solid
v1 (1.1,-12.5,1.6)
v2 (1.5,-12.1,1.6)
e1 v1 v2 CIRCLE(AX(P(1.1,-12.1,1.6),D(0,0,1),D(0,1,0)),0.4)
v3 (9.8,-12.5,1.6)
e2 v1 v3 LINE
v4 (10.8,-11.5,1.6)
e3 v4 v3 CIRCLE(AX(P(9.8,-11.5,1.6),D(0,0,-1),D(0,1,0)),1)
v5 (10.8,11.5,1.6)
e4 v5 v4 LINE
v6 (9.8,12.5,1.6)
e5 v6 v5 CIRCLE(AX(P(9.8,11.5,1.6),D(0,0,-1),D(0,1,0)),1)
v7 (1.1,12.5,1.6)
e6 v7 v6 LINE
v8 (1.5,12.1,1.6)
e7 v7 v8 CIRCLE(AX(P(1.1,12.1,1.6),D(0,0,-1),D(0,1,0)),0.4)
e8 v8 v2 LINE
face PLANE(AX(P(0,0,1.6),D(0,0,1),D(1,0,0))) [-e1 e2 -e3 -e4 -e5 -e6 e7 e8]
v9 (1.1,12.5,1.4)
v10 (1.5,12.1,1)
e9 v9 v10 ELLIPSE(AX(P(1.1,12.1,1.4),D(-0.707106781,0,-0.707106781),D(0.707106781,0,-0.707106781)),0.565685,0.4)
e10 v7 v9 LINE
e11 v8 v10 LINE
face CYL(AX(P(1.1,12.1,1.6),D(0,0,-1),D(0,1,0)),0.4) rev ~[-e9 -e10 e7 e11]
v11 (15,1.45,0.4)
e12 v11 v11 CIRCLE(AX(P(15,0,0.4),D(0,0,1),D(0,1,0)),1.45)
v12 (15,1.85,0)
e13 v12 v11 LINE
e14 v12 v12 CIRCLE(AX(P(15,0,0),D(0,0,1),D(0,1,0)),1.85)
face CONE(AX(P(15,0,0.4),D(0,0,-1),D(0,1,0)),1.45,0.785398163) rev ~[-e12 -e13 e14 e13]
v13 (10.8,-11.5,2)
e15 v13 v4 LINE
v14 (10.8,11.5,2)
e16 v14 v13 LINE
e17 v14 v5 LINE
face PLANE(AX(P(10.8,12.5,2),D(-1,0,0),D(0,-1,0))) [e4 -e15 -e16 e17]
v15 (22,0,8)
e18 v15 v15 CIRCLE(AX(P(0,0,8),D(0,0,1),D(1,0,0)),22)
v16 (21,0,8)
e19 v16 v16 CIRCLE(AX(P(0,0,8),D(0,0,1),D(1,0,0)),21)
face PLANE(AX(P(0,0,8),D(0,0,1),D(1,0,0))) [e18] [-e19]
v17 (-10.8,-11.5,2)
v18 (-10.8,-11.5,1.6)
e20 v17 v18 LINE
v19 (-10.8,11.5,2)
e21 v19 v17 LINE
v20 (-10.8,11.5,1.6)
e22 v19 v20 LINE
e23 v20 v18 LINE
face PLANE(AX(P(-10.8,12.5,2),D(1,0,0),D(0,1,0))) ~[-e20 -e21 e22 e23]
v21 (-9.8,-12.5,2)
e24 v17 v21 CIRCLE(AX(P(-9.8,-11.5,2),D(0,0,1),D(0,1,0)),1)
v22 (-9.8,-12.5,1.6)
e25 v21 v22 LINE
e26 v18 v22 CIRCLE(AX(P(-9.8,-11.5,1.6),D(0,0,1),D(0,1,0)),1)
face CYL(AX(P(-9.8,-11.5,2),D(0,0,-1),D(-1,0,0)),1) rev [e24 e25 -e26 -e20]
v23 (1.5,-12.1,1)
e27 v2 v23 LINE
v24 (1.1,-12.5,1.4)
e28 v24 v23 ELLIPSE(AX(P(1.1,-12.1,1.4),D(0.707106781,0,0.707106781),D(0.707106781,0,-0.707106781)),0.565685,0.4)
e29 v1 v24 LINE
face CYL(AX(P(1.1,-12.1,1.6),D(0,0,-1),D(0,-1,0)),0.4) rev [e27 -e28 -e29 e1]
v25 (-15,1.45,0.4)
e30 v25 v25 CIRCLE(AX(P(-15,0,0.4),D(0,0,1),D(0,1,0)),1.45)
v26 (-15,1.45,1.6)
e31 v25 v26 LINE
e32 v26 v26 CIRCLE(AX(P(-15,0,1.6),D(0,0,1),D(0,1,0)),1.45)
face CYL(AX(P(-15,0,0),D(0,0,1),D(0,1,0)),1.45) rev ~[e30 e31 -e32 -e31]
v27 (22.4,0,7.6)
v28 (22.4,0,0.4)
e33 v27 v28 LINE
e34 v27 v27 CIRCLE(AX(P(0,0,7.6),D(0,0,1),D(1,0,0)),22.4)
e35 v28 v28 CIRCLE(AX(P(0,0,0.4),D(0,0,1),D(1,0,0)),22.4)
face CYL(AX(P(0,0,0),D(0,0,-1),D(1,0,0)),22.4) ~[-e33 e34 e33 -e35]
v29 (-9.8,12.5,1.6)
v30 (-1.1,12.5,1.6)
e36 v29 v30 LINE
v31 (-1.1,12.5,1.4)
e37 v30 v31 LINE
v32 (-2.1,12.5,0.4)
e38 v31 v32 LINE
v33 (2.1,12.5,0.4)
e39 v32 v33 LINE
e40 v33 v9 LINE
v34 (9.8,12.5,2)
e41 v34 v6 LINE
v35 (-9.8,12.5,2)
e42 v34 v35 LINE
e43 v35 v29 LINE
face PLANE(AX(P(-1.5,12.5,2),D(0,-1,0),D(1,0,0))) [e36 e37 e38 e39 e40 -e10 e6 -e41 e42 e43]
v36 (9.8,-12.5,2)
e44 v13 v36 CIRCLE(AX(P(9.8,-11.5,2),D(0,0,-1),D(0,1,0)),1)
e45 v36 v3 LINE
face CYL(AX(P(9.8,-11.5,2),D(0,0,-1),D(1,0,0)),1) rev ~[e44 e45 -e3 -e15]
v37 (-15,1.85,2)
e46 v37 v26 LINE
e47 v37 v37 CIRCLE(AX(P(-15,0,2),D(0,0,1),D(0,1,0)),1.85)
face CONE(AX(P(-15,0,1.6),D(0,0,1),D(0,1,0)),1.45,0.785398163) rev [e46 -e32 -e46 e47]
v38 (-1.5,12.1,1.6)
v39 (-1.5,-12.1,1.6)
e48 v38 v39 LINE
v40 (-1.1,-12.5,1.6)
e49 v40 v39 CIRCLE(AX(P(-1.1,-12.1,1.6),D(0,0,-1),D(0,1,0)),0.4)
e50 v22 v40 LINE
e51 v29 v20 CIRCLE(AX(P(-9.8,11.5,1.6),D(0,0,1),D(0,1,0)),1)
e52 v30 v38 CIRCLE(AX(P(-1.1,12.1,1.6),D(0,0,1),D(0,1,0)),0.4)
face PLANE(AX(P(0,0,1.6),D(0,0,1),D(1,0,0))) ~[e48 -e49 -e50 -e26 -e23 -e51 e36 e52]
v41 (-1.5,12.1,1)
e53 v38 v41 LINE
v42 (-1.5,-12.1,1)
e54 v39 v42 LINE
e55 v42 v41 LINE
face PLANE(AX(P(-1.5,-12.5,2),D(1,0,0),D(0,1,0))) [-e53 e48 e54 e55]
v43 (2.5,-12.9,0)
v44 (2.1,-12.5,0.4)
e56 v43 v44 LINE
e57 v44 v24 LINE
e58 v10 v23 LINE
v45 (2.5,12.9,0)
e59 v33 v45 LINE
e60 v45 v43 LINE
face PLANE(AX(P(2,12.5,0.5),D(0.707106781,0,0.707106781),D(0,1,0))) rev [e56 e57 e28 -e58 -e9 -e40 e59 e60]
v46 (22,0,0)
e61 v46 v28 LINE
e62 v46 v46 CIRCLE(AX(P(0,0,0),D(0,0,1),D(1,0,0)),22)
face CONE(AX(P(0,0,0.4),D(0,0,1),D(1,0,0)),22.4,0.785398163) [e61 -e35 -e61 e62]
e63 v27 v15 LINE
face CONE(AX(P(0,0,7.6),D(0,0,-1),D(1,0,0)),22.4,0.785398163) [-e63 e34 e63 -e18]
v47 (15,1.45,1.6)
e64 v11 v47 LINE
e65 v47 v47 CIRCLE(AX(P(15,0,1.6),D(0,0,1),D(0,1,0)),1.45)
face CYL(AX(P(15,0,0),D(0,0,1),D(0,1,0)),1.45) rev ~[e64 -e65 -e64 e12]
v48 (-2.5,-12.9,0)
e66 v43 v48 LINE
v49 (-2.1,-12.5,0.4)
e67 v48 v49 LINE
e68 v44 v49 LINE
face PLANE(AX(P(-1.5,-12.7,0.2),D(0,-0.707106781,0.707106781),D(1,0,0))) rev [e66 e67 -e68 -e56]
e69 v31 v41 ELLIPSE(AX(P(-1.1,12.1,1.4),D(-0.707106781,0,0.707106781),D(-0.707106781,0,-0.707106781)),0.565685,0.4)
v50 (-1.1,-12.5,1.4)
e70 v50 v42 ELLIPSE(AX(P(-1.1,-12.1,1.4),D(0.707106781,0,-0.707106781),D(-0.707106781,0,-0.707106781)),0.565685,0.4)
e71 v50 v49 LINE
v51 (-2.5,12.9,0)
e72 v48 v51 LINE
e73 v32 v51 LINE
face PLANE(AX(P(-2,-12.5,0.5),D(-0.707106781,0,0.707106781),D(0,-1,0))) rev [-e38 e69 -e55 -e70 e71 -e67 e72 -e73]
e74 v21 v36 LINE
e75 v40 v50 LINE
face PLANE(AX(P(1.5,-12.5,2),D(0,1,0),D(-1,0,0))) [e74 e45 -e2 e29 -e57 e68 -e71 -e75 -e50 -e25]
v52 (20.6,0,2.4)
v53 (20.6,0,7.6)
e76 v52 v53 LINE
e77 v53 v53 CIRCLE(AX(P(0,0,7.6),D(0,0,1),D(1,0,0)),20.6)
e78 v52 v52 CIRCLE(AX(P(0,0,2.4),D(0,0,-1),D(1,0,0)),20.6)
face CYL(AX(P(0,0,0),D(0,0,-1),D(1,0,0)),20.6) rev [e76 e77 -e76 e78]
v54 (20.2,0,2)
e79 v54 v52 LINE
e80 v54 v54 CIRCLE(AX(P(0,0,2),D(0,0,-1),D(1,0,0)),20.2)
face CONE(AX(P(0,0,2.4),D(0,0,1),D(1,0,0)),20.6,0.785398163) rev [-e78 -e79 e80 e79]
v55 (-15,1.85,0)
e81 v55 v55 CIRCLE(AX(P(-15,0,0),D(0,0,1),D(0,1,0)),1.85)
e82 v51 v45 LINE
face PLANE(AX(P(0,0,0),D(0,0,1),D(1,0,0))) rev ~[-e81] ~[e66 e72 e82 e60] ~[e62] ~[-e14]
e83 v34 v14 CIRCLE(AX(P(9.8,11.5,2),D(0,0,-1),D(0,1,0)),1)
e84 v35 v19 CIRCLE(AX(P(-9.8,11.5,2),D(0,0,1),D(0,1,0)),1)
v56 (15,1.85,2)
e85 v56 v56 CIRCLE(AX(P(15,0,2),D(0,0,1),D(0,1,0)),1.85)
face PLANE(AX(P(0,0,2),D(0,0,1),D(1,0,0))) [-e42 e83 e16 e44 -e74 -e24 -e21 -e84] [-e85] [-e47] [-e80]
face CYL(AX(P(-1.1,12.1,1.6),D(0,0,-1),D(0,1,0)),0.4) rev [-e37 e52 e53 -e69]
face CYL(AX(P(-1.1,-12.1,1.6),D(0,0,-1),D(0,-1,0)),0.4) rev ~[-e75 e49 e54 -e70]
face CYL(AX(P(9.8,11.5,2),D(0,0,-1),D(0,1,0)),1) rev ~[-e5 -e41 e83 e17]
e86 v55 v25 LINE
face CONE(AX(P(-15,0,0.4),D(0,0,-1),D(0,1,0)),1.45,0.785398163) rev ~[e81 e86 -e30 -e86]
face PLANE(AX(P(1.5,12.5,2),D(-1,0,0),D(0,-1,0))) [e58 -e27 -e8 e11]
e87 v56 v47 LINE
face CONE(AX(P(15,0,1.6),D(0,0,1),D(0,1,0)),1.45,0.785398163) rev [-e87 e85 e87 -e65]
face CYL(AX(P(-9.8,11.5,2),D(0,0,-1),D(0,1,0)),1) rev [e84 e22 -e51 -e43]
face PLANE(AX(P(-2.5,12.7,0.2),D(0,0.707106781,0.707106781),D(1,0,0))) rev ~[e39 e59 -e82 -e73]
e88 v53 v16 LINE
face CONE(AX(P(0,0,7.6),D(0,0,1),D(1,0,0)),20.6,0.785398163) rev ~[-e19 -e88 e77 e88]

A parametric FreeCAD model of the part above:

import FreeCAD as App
import Part
import Sketcher
from FreeCAD import Vector


def edges_at(feature, points):
    """Names of the edges that pass closest to the given points."""
    edges = feature.Shape.Edges
    near = lambda p: min(range(len(edges)), key=lambda i: edges[i].distToShape(Part.Vertex(*p))[0])
    return sorted({f"Edge{near(p) + 1}" for p in points})

doc = App.newDocument("Part")
body = doc.addObject("PartDesign::Body", "Body")

# Sketch on XY plane
sketch1 = body.newObject("Sketcher::SketchObject", "Sketch")
sketch1.AttachmentSupport = (doc.getObject("XY_Plane"), [""])
sketch1.MapMode = "FlatFace"
sketch1.addGeometry(Part.Circle(Vector(0, 0, 0), Vector(0, 0, 1), 22), False)
sketch1.addConstraint([
    Sketcher.Constraint("Coincident", 0, 3, -1, 1),
    Sketcher.Constraint("Diameter", 0, 44.8),
])
pad1 = body.newObject("PartDesign::Pad", "Pad")
pad1.Profile = sketch1
pad1.Length = 2

# Sketch on XY plane
sketch2 = body.newObject("Sketcher::SketchObject", "Sketch001")
sketch2.AttachmentSupport = (doc.getObject("XY_Plane"), [""])
sketch2.MapMode = "FlatFace"
sketch2.addGeometry([
    Part.Circle(Vector(0, 0, 0), Vector(0, 0, 1), 22),
    Part.Circle(Vector(0, 0, 0), Vector(0, 0, 1), 21),
], False)
sketch2.addConstraint([
    Sketcher.Constraint("Coincident", 0, 3, -1, 1),
    Sketcher.Constraint("Coincident", 1, 3, -1, 1),
    Sketcher.Constraint("Diameter", 1, 41.2),
    Sketcher.Constraint("Diameter", 0, 44.8),
])
pad2 = body.newObject("PartDesign::Pad", "Pad001")
pad2.Profile = sketch2
pad2.Length = 8

# Sketch on XY plane
sketch3 = body.newObject("Sketcher::SketchObject", "Sketch002")
sketch3.AttachmentSupport = (doc.getObject("XY_Plane"), [""])
sketch3.MapMode = "FlatFace"
sketch3.AttachmentOffset = App.Placement(Vector(0, 0, 2), App.Rotation())
sketch3.addGeometry([
    Part.LineSegment(Vector(1.5, 12.5, 0), Vector(-1.5, 12.5, 0)),
    Part.LineSegment(Vector(-1.5, 12.5, 0), Vector(-1.5, -12.5, 0)),
    Part.LineSegment(Vector(-1.5, -12.5, 0), Vector(1.5, -12.5, 0)),
    Part.LineSegment(Vector(1.5, -12.5, 0), Vector(1.5, 12.5, 0)),
], False)
sketch3.addConstraint([
    Sketcher.Constraint("Coincident", 0, 2, 1, 1),
    Sketcher.Constraint("Coincident", 1, 2, 2, 1),
    Sketcher.Constraint("Coincident", 2, 2, 3, 1),
    Sketcher.Constraint("Coincident", 3, 2, 0, 1),
    Sketcher.Constraint("Horizontal", 0),
    Sketcher.Constraint("Vertical", 1),
    Sketcher.Constraint("Horizontal", 2),
    Sketcher.Constraint("Vertical", 3),
    Sketcher.Constraint("Symmetric", 0, 2, 2, 2, -1, 1),
    Sketcher.Constraint("DistanceX", 0, 2, 0, 1, 3.0),
    Sketcher.Constraint("DistanceY", 1, 2, 1, 1, 25.0),
])
pocket1 = body.newObject("PartDesign::Pocket", "Pocket")
pocket1.Profile = sketch3
pocket1.Type = "ThroughAll"

# Sketch on XY plane
sketch4 = body.newObject("Sketcher::SketchObject", "Sketch003")
sketch4.AttachmentSupport = (doc.getObject("XY_Plane"), [""])
sketch4.MapMode = "FlatFace"
sketch4.AttachmentOffset = App.Placement(Vector(0, 0, 2), App.Rotation())
sketch4.addGeometry([
    Part.LineSegment(Vector(11, 12, 0), Vector(2, 12, 0)),
    Part.LineSegment(Vector(2, 12, 0), Vector(2, -12, 0)),
    Part.LineSegment(Vector(2, -12, 0), Vector(11, -12, 0)),
    Part.LineSegment(Vector(11, -12, 0), Vector(11, 12, 0)),
], False)
sketch4.addConstraint([
    Sketcher.Constraint("Coincident", 0, 2, 1, 1),
    Sketcher.Constraint("Coincident", 1, 2, 2, 1),
    Sketcher.Constraint("Coincident", 2, 2, 3, 1),
    Sketcher.Constraint("Coincident", 3, 2, 0, 1),
    Sketcher.Constraint("Horizontal", 0),
    Sketcher.Constraint("Vertical", 1),
    Sketcher.Constraint("Horizontal", 2),
    Sketcher.Constraint("Vertical", 3),
    Sketcher.Constraint("DistanceX", 0, 2, 0, 1, 9.3),
    Sketcher.Constraint("DistanceY", 1, 2, 1, 1, 25.0),
    Sketcher.Constraint("DistanceX", -1, 1, 0, 2, 1.5),
    Sketcher.Constraint("DistanceY", -1, 1, 0, 2, 12.5),
])
pocket2 = body.newObject("PartDesign::Pocket", "Pocket001")
pocket2.Profile = sketch4
pocket2.Length = 0.4
doc.recompute()

mirrored = body.newObject("PartDesign::Mirrored", "Mirrored")
mirrored.Originals = [pocket2]
mirrored.MirrorPlane = (doc.getObject("YZ_Plane"), [""])
body.Tip = mirrored
doc.recompute()

chamfer = body.newObject("PartDesign::Chamfer", "Chamfer")
chamfer.Base = (mirrored, edges_at(mirrored, [(1.5, 0, 0), (-1.5, 0, 0)]))
chamfer.Size = 1
doc.recompute()

fillet = body.newObject("PartDesign::Fillet", "Fillet")
fillet.Base = (chamfer, edges_at(chamfer, [
    (-1.5, -12.5, 1.3),
    (1.5, -12.5, 1.3),
    (-1.5, 12.5, 1.3),
    (1.5, 12.5, 1.3),
]))
fillet.Radius = 0.4
doc.recompute()

fillet2 = body.newObject("PartDesign::Fillet", "Fillet001")
fillet2.Base = (fillet, edges_at(fillet, [
    (-10.8, 12.5, 1.8),
    (10.8, 12.5, 1.8),
    (10.8, -12.5, 1.8),
    (-10.8, -12.5, 1.8),
]))
fillet2.Radius = 1
doc.recompute()

chamfer2 = body.newObject("PartDesign::Chamfer", "Chamfer001")
chamfer2.Base = (fillet2, edges_at(fillet2, [
    (-22.4, 0, 8),
    (-20.6, 0, 8),
    (-20.6, 0, 2),
    (-22.4, 0, 0),
    (0, 12.5, 0),
    (0, -12.5, 0),
]))
chamfer2.Size = 0.4

# Sketch on XY plane
sketch5 = body.newObject("Sketcher::SketchObject", "Sketch004")
sketch5.AttachmentSupport = (doc.getObject("XY_Plane"), [""])
sketch5.MapMode = "FlatFace"
sketch5.addGeometry([
    Part.Circle(Vector(-15, 0, 0), Vector(0, 0, 1), 1.4),
    Part.Circle(Vector(15, 0, 0), Vector(0, 0, 1), 1.4),
], False)
sketch5.addConstraint([
    Sketcher.Constraint("Equal", 0, 1),
    Sketcher.Constraint("Symmetric", 0, 3, 1, 3, -1, 1),
    Sketcher.Constraint("PointOnObject", 0, 3, -1),
    Sketcher.Constraint("Diameter", 0, 2.9),
    Sketcher.Constraint("DistanceX", 0, 3, -1, 1, 15.0),
])
doc.recompute()
hole = body.newObject("PartDesign::Hole", "Hole")
hole.Profile = sketch5
hole.ThreadType = "None"
hole.Diameter = 2.9
hole.DepthType = "ThroughAll"
hole.Reversed = True
doc.recompute()

chamfer3 = body.newObject("PartDesign::Chamfer", "Chamfer002")
chamfer3.Base = (hole, edges_at(hole, [
    (15, -1.45, 0),
    (-15, -1.45, 0),
    (15, -1.45, 2),
    (-15, -1.45, 2),
]))
chamfer3.Size = 0.4

doc.recompute()
